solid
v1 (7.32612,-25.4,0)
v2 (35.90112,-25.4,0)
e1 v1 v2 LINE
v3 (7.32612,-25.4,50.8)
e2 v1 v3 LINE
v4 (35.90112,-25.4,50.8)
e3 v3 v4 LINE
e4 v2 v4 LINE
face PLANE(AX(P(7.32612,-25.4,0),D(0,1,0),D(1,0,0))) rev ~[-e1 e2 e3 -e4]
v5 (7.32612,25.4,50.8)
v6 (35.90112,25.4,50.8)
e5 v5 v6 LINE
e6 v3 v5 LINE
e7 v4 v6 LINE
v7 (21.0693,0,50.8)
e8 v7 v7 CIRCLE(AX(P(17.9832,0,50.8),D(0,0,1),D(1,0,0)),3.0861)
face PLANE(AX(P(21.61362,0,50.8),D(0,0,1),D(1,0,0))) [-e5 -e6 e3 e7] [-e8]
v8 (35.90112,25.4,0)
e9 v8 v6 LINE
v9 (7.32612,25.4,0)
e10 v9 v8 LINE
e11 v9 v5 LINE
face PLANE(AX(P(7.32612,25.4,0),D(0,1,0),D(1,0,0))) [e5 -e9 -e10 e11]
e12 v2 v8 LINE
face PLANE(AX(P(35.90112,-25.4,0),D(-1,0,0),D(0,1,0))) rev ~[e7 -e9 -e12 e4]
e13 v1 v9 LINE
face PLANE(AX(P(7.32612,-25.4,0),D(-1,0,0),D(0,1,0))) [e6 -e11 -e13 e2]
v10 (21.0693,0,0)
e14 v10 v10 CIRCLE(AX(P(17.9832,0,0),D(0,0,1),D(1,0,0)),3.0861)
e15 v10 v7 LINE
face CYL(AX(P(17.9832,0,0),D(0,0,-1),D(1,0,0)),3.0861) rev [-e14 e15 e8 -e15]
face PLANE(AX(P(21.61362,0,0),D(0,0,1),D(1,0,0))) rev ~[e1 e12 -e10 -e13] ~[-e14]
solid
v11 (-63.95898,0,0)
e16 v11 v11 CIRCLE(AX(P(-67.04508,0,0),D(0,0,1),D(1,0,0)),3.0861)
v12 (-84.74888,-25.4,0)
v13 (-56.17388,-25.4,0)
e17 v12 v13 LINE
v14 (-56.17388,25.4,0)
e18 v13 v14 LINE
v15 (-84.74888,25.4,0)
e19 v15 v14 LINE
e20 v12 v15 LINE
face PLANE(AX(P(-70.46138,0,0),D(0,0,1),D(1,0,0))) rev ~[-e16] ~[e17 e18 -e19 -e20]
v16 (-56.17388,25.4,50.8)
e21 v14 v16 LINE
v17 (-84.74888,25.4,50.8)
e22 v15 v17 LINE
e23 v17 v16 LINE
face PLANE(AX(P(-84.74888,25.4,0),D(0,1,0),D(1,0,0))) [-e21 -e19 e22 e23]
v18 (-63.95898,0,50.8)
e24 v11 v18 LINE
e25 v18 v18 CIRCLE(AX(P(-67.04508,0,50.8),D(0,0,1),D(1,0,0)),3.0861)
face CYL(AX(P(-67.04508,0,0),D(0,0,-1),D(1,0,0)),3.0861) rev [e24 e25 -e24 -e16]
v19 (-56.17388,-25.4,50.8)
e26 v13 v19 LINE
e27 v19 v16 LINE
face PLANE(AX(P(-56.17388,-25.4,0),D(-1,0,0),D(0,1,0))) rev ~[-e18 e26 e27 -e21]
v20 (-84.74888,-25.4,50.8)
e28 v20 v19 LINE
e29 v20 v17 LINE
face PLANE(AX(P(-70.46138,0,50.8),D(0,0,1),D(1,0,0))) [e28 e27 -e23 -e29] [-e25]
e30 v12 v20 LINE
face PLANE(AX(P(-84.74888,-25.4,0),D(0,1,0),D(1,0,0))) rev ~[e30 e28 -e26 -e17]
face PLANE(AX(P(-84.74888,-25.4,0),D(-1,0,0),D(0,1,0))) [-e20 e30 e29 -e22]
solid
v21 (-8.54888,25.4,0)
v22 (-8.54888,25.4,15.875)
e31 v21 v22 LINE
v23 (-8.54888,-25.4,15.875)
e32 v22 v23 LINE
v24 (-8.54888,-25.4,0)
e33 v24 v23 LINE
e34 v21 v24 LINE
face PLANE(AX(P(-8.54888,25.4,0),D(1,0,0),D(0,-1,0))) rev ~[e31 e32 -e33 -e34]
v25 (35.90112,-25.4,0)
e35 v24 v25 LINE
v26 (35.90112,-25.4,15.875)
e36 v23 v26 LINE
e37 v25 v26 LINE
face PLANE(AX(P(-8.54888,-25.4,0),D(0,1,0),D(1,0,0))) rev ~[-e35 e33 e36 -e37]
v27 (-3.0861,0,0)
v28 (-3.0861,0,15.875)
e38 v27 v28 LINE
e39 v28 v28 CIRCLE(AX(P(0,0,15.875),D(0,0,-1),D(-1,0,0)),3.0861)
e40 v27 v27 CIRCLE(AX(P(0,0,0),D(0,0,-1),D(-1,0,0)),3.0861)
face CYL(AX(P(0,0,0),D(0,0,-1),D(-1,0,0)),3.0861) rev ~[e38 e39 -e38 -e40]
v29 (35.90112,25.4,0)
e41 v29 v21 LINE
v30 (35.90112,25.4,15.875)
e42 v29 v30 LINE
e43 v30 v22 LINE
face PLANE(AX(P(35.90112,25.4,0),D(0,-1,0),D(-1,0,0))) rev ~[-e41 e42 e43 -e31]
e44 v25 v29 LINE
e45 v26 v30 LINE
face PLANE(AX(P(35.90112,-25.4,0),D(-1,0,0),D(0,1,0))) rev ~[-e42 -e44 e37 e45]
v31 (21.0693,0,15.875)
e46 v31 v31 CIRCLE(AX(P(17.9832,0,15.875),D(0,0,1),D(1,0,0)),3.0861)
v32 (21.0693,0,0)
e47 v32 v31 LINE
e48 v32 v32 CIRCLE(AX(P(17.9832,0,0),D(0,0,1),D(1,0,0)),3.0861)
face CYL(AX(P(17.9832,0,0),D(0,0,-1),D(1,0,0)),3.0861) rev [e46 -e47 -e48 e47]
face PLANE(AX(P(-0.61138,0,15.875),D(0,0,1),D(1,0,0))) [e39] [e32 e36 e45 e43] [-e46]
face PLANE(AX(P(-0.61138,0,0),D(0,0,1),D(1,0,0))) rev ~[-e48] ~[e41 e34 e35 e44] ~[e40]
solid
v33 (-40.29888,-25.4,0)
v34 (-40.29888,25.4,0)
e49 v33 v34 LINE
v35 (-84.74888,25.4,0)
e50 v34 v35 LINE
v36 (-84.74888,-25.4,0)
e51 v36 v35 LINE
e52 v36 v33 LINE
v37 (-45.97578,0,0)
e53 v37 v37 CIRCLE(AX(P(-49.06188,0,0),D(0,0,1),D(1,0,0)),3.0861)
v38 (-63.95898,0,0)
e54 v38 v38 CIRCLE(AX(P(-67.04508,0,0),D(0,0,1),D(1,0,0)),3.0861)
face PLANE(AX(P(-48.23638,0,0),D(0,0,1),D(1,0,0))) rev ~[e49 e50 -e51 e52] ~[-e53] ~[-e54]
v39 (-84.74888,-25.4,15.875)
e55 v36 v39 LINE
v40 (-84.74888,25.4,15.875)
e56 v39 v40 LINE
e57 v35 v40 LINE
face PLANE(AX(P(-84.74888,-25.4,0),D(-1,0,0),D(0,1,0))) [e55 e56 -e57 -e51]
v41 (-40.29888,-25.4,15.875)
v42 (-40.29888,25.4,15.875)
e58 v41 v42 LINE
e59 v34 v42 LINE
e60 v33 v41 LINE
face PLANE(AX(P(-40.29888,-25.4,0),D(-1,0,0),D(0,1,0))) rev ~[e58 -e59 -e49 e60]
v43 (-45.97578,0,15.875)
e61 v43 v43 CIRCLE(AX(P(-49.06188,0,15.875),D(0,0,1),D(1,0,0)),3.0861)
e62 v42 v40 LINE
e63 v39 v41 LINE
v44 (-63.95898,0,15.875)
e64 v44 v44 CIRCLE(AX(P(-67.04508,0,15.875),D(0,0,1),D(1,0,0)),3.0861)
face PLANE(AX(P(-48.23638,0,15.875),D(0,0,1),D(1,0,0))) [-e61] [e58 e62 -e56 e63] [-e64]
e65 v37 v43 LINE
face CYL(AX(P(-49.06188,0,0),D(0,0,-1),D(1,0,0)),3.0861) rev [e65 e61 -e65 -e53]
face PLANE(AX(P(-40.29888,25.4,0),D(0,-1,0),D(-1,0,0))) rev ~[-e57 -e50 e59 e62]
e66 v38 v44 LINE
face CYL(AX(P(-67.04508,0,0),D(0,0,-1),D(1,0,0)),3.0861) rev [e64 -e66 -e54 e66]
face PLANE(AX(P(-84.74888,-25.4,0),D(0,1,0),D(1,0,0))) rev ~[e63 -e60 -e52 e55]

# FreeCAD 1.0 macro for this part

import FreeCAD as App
import Part
import Sketcher
Q = App.Units.Quantity


def add_polygon(sketch, points):
    """Adds a closed chain of lines whose ends are joined by coincident constraints."""
    first, n = sketch.GeometryCount, len(points)
    for a, b in zip(points, points[1:] + points[:1]):
        sketch.addGeometry(Part.LineSegment(App.Vector(*a, 0), App.Vector(*b, 0)), False)
    for i in range(n):
        sketch.addConstraint(Sketcher.Constraint("Coincident", first + i, 2, first + (i + 1) % n, 1))

doc = App.newDocument("Part")
params = doc.addObject("Spreadsheet::Sheet", "Params")
for row, (alias, value) in enumerate([
    ("sketch1_height", "2 in"),
    ("sketch1_diameter", "0.243 in"),
    ("sketch1_width", "1.125 in"),
    ("pad1_length", "2 in"),
    ("sketch2_height", "2 in"),
    ("sketch2_diameter", "0.243 in"),
    ("sketch2_width", "1.125 in"),
    ("pad2_length", "2 in"),
    ("sketch3_height", "2 in"),
    ("sketch3_diameter", "0.243 in"),
    ("sketch3_width", "1.75 in"),
    ("pad3_length", "0.625 in"),
    ("sketch4_height", "2 in"),
    ("sketch4_diameter", "0.243 in"),
    ("sketch4_width", "1.75 in"),
    ("pad4_length", "0.625 in"),
], start=1):
    params.set(f"A{row}", alias)
    params.set(f"B{row}", "=" + value)
    params.setAlias(f"B{row}", alias)

body = doc.addObject("PartDesign::Body", "Body")

# Sketch on XY plane
sketch1 = body.newObject("Sketcher::SketchObject", "Sketch")
sketch1.AttachmentSupport = (doc.getObject("XY_Plane"), [""])
sketch1.MapMode = "FlatFace"
add_polygon(sketch1, [(-84.7, 25.4), (-84.7, -25.4), (-56.2, -25.4), (-56.2, 25.4)])  # lines 0-3
sketch1.addGeometry(Part.Circle(App.Vector(-67, 0, 0), App.Vector(0, 0, 1), 3.1), False)  # 4
sketch1.addConstraint(Sketcher.Constraint("Vertical", 0))
sketch1.addConstraint(Sketcher.Constraint("Horizontal", 1))
sketch1.addConstraint(Sketcher.Constraint("Vertical", 2))
sketch1.addConstraint(Sketcher.Constraint("Horizontal", 3))
sketch1.addConstraint(Sketcher.Constraint("PointOnObject", 4, 3, -1))
sketch1.addConstraint(Sketcher.Constraint("DistanceY", 0, 2, 0, 1, Q("2 in")))
sketch1.addConstraint(Sketcher.Constraint("Diameter", 4, Q("0.243 in")))
sketch1.addConstraint(Sketcher.Constraint("DistanceY", 0, 2, -1, 1, Q("1 in")))
sketch1.addConstraint(Sketcher.Constraint("DistanceX", 1, 1, 1, 2, Q("1.125 in")))
sketch1.addConstraint(Sketcher.Constraint("DistanceX", 0, 2, 4, 3, Q("0.697 in")))
sketch1.addConstraint(Sketcher.Constraint("DistanceX", 4, 3, -1, 1, Q("67.04508 mm")))
sketch1.setExpression("Constraints[9]", "Params.sketch1_height")
sketch1.setExpression("Constraints[10]", "Params.sketch1_diameter")
sketch1.setExpression("Constraints[12]", "Params.sketch1_width")
pad1 = body.newObject("PartDesign::Pad", "Pad")
pad1.Profile = sketch1
pad1.setExpression("Length", "Params.pad1_length")
body2 = doc.addObject("PartDesign::Body", "Body001")

# Sketch on XY plane
sketch2 = body2.newObject("Sketcher::SketchObject", "Sketch001")
sketch2.AttachmentSupport = (doc.getObject("XY_Plane001"), [""])
sketch2.MapMode = "FlatFace"
add_polygon(sketch2, [(7.3, 25.4), (7.3, -25.4), (35.9, -25.4), (35.9, 25.4)])  # lines 0-3
sketch2.addGeometry(Part.Circle(App.Vector(18, 0, 0), App.Vector(0, 0, 1), 3.1), False)  # 4
sketch2.addConstraint(Sketcher.Constraint("Vertical", 0))
sketch2.addConstraint(Sketcher.Constraint("Horizontal", 1))
sketch2.addConstraint(Sketcher.Constraint("Vertical", 2))
sketch2.addConstraint(Sketcher.Constraint("Horizontal", 3))
sketch2.addConstraint(Sketcher.Constraint("PointOnObject", 4, 3, -1))
sketch2.addConstraint(Sketcher.Constraint("DistanceY", 0, 2, 0, 1, Q("2 in")))
sketch2.addConstraint(Sketcher.Constraint("Diameter", 4, Q("0.243 in")))
sketch2.addConstraint(Sketcher.Constraint("DistanceY", 0, 2, -1, 1, Q("1 in")))
sketch2.addConstraint(Sketcher.Constraint("DistanceX", 1, 1, 1, 2, Q("1.125 in")))
sketch2.addConstraint(Sketcher.Constraint("DistanceX", -1, 1, 4, 3, Q("0.708 in")))
sketch2.addConstraint(Sketcher.Constraint("DistanceX", -1, 1, 0, 2, Q("7.32612 mm")))
sketch2.setExpression("Constraints[9]", "Params.sketch2_height")
sketch2.setExpression("Constraints[10]", "Params.sketch2_diameter")
sketch2.setExpression("Constraints[12]", "Params.sketch2_width")
pad2 = body2.newObject("PartDesign::Pad", "Pad001")
pad2.Profile = sketch2
pad2.setExpression("Length", "Params.pad2_length")
body3 = doc.addObject("PartDesign::Body", "Body002")

# Sketch on XY plane
sketch3 = body3.newObject("Sketcher::SketchObject", "Sketch002")
sketch3.AttachmentSupport = (doc.getObject("XY_Plane002"), [""])
sketch3.MapMode = "FlatFace"
add_polygon(sketch3, [(-40.3, -25.4), (-40.3, 25.4), (-84.7, 25.4), (-84.7, -25.4)])  # lines 0-3
sketch3.addGeometry(Part.Circle(App.Vector(-67, 0, 0), App.Vector(0, 0, 1), 3.1), False)  # 4
sketch3.addGeometry(Part.Circle(App.Vector(-49.1, 0, 0), App.Vector(0, 0, 1), 3.1), False)  # 5
sketch3.addConstraint(Sketcher.Constraint("Vertical", 0))
sketch3.addConstraint(Sketcher.Constraint("Horizontal", 1))
sketch3.addConstraint(Sketcher.Constraint("Vertical", 2))
sketch3.addConstraint(Sketcher.Constraint("Horizontal", 3))
sketch3.addConstraint(Sketcher.Constraint("Equal", 4, 5))
sketch3.addConstraint(Sketcher.Constraint("PointOnObject", 4, 3, -1))
sketch3.addConstraint(Sketcher.Constraint("PointOnObject", 5, 3, -1))
sketch3.addConstraint(Sketcher.Constraint("DistanceY", 0, 1, 0, 2, Q("2 in")))
sketch3.addConstraint(Sketcher.Constraint("Diameter", 4, Q("0.243 in")))
sketch3.addConstraint(Sketcher.Constraint("DistanceY", -1, 1, 0, 2, Q("1 in")))
sketch3.addConstraint(Sketcher.Constraint("DistanceX", 1, 2, 1, 1, Q("1.75 in")))
sketch3.addConstraint(Sketcher.Constraint("DistanceX", 4, 3, 5, 3, Q("0.708 in")))
sketch3.addConstraint(Sketcher.Constraint("DistanceX", 5, 3, 0, 2, Q("0.345 in")))
sketch3.addConstraint(Sketcher.Constraint("DistanceX", 4, 3, -1, 1, Q("67.04508 mm")))
sketch3.setExpression("Constraints[11]", "Params.sketch3_height")
sketch3.setExpression("Constraints[12]", "Params.sketch3_diameter")
sketch3.setExpression("Constraints[14]", "Params.sketch3_width")
pad3 = body3.newObject("PartDesign::Pad", "Pad002")
pad3.Profile = sketch3
pad3.setExpression("Length", "Params.pad3_length")
body4 = doc.addObject("PartDesign::Body", "Body003")

# Sketch on XY plane
sketch4 = body4.newObject("Sketcher::SketchObject", "Sketch003")
sketch4.AttachmentSupport = (doc.getObject("XY_Plane003"), [""])
sketch4.MapMode = "FlatFace"
add_polygon(sketch4, [(-8.5, 25.4), (-8.5, -25.4), (35.9, -25.4), (35.9, 25.4)])  # lines 0-3
sketch4.addGeometry(Part.Circle(App.Vector(0, 0, 0), App.Vector(0, 0, 1), 3.1), False)  # 4
sketch4.addGeometry(Part.Circle(App.Vector(18, 0, 0), App.Vector(0, 0, 1), 3.1), False)  # 5
sketch4.addConstraint(Sketcher.Constraint("Vertical", 0))
sketch4.addConstraint(Sketcher.Constraint("Horizontal", 1))
sketch4.addConstraint(Sketcher.Constraint("Vertical", 2))
sketch4.addConstraint(Sketcher.Constraint("Horizontal", 3))
sketch4.addConstraint(Sketcher.Constraint("Coincident", 4, 3, -1, 1))
sketch4.addConstraint(Sketcher.Constraint("Equal", 4, 5))
sketch4.addConstraint(Sketcher.Constraint("PointOnObject", 5, 3, -1))
sketch4.addConstraint(Sketcher.Constraint("DistanceY", 0, 2, 0, 1, Q("2 in")))
sketch4.addConstraint(Sketcher.Constraint("Diameter", 4, Q("0.243 in")))
sketch4.addConstraint(Sketcher.Constraint("DistanceY", 0, 2, -1, 1, Q("1 in")))
sketch4.addConstraint(Sketcher.Constraint("DistanceX", 1, 1, 1, 2, Q("1.75 in")))
sketch4.addConstraint(Sketcher.Constraint("DistanceX", -1, 1, 5, 3, Q("0.708 in")))
sketch4.addConstraint(Sketcher.Constraint("DistanceX", 0, 2, -1, 1, Q("8.54888 mm")))
sketch4.setExpression("Constraints[11]", "Params.sketch4_height")
sketch4.setExpression("Constraints[12]", "Params.sketch4_diameter")
sketch4.setExpression("Constraints[14]", "Params.sketch4_width")
pad4 = body4.newObject("PartDesign::Pad", "Pad003")
pad4.Profile = sketch4
pad4.setExpression("Length", "Params.pad4_length")

doc.recompute()
